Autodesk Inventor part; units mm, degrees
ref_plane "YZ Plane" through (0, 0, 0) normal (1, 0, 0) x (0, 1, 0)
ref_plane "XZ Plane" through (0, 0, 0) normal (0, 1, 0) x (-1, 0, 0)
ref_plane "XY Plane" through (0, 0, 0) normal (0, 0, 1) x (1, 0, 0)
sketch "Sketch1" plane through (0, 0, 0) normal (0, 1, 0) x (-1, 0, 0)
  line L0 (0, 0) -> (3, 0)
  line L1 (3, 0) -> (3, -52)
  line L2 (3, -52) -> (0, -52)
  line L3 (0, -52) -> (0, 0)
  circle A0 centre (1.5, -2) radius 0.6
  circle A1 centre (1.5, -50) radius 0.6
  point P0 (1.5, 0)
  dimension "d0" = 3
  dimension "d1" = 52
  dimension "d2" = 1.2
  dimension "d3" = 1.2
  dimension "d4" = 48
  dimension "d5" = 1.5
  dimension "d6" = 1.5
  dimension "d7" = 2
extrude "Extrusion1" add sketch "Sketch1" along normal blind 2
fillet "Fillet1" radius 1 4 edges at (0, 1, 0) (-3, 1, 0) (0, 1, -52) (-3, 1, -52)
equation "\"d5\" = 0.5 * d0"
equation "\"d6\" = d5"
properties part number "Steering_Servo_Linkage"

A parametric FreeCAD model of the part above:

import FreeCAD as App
import Part
import Sketcher
from FreeCAD import Vector


def edges_at(feature, points):
    """Names of the edges that pass closest to the given points."""
    edges = feature.Shape.Edges
    near = lambda p: min(range(len(edges)), key=lambda i: edges[i].distToShape(Part.Vertex(*p))[0])
    return sorted({f"Edge{near(p) + 1}" for p in points})


def add_polygon(sketch, points):
    """Adds a closed chain of lines whose ends are joined by coincident constraints."""
    first, n = sketch.GeometryCount, len(points)
    for a, b in zip(points, points[1:] + points[:1]):
        sketch.addGeometry(Part.LineSegment(App.Vector(*a, 0), App.Vector(*b, 0)), False)
    for i in range(n):
        sketch.addConstraint(Sketcher.Constraint("Coincident", first + i, 2, first + (i + 1) % n, 1))

doc = App.newDocument("Part")
body = doc.addObject("PartDesign::Body", "Body")

sketch1 = body.newObject("Sketcher::SketchObject", "Sketch")
sketch1.AttachmentSupport = (doc.getObject("XZ_Plane"), [""])
sketch1.MapMode = "FlatFace"
add_polygon(sketch1, [(-3, 0), (0, 0), (0, -52), (-3, -52)])
sketch1.addGeometry(Part.Circle(Vector(-1.5, -50, 0), Vector(0, 0, 1), 0.6), False)
sketch1.addGeometry(Part.Circle(Vector(-1.5, -2, 0), Vector(0, 0, 1), 0.6), False)
sketch1.addConstraint(Sketcher.Constraint("Horizontal", 0))
sketch1.addConstraint(Sketcher.Constraint("Vertical", 1))
sketch1.addConstraint(Sketcher.Constraint("Horizontal", 2))
sketch1.addConstraint(Sketcher.Constraint("Vertical", 3))
sketch1.addConstraint(Sketcher.Constraint("Coincident", 0, 2, -1, 1))
sketch1.addConstraint(Sketcher.Constraint("Equal", 4, 5))
sketch1.addConstraint(Sketcher.Constraint("Vertical", 4, 3, 5, 3))
sketch1.addConstraint(Sketcher.Constraint("Diameter", 4, 1.2))
sketch1.addConstraint(Sketcher.Constraint("DistanceX", 0, 1, 0, 2, 3.0))
sketch1.addConstraint(Sketcher.Constraint("DistanceY", 1, 2, 1, 1, 52.0))
sketch1.addConstraint(Sketcher.Constraint("DistanceY", 5, 3, -1, 1, 2.0))
sketch1.addConstraint(Sketcher.Constraint("DistanceY", 4, 3, 5, 3, 48.0))
sketch1.addConstraint(Sketcher.Constraint("DistanceX", 4, 3, -1, 1, 1.5))
pad1 = body.newObject("PartDesign::Pad", "Pad")
pad1.Profile = sketch1
pad1.Length = 2
pad1.Reversed = True
doc.recompute()

fillet = body.newObject("PartDesign::Fillet", "Fillet")
fillet.Base = (pad1, edges_at(pad1, [
    (0, 1, 0),
    (-3, 1, 0),
    (0, 1, -52),
    (-3, 1, -52),
]))
fillet.Radius = 1

doc.recompute()
